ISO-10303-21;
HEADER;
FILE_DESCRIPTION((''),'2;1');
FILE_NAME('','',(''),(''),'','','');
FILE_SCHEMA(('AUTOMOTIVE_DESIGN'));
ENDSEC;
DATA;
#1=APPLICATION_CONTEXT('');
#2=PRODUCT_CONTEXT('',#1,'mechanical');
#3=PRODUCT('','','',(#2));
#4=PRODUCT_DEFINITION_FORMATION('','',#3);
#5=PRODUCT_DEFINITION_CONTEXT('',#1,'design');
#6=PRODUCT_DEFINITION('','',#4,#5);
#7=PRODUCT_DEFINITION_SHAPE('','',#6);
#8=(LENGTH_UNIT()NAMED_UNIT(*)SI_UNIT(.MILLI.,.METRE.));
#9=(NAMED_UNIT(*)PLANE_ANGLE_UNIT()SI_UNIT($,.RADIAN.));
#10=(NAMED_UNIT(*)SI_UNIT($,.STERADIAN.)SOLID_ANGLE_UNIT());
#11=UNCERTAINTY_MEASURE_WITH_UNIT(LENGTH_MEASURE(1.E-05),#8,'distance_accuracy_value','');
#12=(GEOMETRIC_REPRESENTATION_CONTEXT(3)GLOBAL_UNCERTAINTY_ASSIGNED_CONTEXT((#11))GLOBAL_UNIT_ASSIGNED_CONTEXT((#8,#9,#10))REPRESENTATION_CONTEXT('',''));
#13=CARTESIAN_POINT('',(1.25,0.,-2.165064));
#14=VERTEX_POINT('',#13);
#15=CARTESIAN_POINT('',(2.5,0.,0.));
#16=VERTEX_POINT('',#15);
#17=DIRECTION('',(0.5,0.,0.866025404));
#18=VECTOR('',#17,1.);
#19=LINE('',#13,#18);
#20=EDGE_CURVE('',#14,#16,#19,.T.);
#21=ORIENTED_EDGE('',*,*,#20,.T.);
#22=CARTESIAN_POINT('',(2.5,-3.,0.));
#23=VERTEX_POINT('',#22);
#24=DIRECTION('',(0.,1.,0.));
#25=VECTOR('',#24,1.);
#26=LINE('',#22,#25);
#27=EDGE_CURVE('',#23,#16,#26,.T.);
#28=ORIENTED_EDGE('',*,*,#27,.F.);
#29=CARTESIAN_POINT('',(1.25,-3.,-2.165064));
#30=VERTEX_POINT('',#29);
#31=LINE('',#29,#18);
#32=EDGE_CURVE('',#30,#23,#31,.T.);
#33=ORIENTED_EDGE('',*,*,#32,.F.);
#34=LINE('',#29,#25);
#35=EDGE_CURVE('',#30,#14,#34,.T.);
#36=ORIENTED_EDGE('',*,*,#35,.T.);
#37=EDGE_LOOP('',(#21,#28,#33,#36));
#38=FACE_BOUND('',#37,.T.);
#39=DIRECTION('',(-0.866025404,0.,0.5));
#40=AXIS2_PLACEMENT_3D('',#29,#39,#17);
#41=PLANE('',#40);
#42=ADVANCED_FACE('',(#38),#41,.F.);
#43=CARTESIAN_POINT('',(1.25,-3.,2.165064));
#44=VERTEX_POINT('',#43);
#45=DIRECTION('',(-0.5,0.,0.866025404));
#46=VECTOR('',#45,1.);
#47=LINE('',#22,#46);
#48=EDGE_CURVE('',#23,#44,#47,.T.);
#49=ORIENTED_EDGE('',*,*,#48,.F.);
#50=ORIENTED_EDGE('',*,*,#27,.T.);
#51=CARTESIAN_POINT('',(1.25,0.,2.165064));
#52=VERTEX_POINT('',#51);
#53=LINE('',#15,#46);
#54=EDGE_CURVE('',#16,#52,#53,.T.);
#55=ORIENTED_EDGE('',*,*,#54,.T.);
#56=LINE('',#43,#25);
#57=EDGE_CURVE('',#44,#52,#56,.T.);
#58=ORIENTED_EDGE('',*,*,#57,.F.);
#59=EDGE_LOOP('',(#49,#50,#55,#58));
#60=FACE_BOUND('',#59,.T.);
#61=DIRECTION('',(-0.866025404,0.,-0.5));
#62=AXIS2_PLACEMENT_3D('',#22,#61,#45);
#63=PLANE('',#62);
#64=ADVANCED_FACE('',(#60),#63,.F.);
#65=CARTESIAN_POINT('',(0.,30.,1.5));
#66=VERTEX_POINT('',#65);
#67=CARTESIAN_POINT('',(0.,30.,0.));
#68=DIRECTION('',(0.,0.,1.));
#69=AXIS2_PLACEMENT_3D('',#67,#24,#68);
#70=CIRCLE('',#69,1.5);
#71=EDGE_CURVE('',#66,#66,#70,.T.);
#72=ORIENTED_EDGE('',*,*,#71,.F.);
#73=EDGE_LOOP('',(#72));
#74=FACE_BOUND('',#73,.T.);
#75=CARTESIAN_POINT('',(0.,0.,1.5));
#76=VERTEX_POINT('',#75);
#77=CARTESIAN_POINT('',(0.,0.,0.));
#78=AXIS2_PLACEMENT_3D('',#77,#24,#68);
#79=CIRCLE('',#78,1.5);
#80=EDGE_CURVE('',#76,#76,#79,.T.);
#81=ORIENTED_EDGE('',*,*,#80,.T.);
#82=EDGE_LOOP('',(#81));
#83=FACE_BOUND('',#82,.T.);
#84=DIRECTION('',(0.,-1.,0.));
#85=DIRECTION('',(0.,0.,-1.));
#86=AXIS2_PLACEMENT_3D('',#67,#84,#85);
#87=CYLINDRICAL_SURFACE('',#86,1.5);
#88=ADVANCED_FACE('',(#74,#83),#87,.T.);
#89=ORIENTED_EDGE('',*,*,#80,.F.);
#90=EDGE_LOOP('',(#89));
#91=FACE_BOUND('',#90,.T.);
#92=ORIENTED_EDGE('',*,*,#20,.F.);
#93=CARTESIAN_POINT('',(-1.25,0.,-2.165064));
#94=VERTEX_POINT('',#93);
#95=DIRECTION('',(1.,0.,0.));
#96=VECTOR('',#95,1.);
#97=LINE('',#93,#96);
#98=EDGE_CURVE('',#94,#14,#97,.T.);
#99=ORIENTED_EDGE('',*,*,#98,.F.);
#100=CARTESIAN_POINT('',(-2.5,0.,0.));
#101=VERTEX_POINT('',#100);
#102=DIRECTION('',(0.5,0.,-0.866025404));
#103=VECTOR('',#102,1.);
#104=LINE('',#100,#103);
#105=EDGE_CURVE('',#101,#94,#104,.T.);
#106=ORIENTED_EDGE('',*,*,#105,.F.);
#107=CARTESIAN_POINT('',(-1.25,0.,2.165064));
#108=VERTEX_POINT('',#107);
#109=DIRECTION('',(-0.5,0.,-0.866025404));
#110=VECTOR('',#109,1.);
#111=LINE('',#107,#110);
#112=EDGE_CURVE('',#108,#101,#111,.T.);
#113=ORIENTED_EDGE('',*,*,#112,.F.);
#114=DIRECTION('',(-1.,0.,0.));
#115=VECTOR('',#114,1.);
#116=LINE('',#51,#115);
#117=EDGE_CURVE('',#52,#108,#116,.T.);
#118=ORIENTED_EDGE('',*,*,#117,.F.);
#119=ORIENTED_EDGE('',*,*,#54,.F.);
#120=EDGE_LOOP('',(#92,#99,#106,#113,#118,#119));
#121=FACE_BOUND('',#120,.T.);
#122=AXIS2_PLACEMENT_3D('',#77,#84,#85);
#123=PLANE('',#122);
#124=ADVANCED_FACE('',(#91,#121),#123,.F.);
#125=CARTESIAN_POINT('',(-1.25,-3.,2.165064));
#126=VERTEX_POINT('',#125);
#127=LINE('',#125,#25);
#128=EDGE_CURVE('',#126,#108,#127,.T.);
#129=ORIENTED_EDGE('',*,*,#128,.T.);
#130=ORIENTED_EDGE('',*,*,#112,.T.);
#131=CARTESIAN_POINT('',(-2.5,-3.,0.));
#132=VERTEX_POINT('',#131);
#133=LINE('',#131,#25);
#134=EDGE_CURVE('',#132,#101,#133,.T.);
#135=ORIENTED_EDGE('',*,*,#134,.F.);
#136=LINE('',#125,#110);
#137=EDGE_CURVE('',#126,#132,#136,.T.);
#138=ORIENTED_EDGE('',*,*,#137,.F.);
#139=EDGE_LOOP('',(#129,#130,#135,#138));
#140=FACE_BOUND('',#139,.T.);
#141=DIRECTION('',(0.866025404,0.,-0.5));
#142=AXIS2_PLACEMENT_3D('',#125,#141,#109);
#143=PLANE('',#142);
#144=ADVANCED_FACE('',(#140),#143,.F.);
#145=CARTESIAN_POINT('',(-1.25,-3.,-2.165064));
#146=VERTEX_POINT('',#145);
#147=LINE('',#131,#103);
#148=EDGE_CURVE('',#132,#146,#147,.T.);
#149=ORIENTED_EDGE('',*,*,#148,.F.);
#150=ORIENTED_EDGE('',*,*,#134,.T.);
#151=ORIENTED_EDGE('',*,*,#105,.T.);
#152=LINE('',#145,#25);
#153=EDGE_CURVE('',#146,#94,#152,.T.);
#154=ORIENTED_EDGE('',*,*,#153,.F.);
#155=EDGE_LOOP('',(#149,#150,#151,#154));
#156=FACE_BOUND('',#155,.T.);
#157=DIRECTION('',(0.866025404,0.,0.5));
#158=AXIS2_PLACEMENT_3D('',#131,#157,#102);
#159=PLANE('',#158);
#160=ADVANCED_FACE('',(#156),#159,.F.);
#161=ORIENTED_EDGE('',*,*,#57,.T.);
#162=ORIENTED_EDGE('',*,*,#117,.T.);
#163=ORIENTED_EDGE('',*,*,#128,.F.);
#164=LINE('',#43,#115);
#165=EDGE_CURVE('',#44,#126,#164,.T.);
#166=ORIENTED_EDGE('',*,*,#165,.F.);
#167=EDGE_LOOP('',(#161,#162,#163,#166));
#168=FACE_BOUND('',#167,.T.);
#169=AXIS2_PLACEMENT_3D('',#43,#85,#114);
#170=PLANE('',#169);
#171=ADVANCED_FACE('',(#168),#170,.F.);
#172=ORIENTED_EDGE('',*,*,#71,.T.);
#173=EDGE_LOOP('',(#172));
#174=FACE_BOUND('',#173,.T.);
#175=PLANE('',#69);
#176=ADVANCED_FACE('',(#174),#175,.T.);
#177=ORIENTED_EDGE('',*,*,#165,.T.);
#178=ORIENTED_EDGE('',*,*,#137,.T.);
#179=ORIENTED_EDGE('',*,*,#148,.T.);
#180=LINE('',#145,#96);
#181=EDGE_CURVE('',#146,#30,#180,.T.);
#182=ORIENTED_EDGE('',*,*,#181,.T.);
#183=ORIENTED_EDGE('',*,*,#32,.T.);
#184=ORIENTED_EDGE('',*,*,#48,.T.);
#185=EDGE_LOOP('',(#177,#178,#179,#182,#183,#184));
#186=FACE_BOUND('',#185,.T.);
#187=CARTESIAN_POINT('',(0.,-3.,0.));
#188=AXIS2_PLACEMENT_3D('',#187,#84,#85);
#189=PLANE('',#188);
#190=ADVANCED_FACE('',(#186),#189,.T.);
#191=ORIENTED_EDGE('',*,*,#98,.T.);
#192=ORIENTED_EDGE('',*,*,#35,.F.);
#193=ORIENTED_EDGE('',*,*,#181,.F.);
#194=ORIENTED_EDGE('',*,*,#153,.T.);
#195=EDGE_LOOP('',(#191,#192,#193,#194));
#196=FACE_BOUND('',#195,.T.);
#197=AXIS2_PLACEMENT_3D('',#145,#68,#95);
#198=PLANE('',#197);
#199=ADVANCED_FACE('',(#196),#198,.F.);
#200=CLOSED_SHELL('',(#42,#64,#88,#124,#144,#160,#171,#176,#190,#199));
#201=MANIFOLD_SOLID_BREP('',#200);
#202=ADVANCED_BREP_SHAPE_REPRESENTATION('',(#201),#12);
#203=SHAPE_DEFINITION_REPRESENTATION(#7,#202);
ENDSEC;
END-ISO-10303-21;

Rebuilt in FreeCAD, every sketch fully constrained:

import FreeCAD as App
import Part
import Sketcher

V = App.Vector
Q = App.Units.Quantity


def add_polygon(sketch, points):
    """Adds a closed chain of lines whose ends are joined by coincident constraints."""
    first, n = sketch.GeometryCount, len(points)
    for a, b in zip(points, points[1:] + points[:1]):
        sketch.addGeometry(Part.LineSegment(App.Vector(*a, 0), App.Vector(*b, 0)), False)
    for i in range(n):
        sketch.addConstraint(Sketcher.Constraint("Coincident", first + i, 2, first + (i + 1) % n, 1))

doc = App.newDocument("Part")
body = doc.addObject("PartDesign::Body", "Body")

# Sketch on XZ plane
sketch1 = body.newObject("Sketcher::SketchObject", "Sketch")
sketch1.AttachmentSupport = (doc.getObject("XZ_Plane"), [""])
sketch1.MapMode = "FlatFace"
sketch1.addGeometry(Part.Circle(V(0, 0, 0), V(0, 0, 1), 1.5), False)
sketch1.addConstraint([
    Sketcher.Constraint("Coincident", 0, 3, -1, 1),
    Sketcher.Constraint("Diameter", 0, Q("3 mm")),
])
pad1 = body.newObject("PartDesign::Pad", "Pad")
pad1.Profile = sketch1
pad1.Length = 30
pad1.Reversed = True

# Sketch on XZ plane
sketch2 = body.newObject("Sketcher::SketchObject", "Sketch001")
sketch2.AttachmentSupport = (doc.getObject("XZ_Plane"), [""])
sketch2.MapMode = "FlatFace"
add_polygon(sketch2, [(1.25, -2.165064), (2.5, 0), (1.25, 2.165064), (-1.25, 2.165064), (-2.5, 0), (-1.25, -2.165064)])  # lines 0-5
sketch2.addConstraint([
    Sketcher.Constraint("Horizontal", 2),
    Sketcher.Constraint("Horizontal", 5),
    Sketcher.Constraint("Symmetric", 0, 2, 3, 2, -1, 1),
    Sketcher.Constraint("Symmetric", 1, 2, 4, 2, -1, 1),
    Sketcher.Constraint("PointOnObject", 0, 2, -1),
    Sketcher.Constraint("Parallel", 0, 3),
    Sketcher.Constraint("Vertical", 2, 2, 4, 2),
    Sketcher.Constraint("Angle", 0, Q("60 deg")),
    Sketcher.Constraint("DistanceX", 2, 2, 2, 1, Q("2.5 mm")),
    Sketcher.Constraint("DistanceX", 3, 2, 0, 2, Q("5 mm")),
])
pad2 = body.newObject("PartDesign::Pad", "Pad001")
pad2.Profile = sketch2
pad2.Length = 3

doc.recompute()
